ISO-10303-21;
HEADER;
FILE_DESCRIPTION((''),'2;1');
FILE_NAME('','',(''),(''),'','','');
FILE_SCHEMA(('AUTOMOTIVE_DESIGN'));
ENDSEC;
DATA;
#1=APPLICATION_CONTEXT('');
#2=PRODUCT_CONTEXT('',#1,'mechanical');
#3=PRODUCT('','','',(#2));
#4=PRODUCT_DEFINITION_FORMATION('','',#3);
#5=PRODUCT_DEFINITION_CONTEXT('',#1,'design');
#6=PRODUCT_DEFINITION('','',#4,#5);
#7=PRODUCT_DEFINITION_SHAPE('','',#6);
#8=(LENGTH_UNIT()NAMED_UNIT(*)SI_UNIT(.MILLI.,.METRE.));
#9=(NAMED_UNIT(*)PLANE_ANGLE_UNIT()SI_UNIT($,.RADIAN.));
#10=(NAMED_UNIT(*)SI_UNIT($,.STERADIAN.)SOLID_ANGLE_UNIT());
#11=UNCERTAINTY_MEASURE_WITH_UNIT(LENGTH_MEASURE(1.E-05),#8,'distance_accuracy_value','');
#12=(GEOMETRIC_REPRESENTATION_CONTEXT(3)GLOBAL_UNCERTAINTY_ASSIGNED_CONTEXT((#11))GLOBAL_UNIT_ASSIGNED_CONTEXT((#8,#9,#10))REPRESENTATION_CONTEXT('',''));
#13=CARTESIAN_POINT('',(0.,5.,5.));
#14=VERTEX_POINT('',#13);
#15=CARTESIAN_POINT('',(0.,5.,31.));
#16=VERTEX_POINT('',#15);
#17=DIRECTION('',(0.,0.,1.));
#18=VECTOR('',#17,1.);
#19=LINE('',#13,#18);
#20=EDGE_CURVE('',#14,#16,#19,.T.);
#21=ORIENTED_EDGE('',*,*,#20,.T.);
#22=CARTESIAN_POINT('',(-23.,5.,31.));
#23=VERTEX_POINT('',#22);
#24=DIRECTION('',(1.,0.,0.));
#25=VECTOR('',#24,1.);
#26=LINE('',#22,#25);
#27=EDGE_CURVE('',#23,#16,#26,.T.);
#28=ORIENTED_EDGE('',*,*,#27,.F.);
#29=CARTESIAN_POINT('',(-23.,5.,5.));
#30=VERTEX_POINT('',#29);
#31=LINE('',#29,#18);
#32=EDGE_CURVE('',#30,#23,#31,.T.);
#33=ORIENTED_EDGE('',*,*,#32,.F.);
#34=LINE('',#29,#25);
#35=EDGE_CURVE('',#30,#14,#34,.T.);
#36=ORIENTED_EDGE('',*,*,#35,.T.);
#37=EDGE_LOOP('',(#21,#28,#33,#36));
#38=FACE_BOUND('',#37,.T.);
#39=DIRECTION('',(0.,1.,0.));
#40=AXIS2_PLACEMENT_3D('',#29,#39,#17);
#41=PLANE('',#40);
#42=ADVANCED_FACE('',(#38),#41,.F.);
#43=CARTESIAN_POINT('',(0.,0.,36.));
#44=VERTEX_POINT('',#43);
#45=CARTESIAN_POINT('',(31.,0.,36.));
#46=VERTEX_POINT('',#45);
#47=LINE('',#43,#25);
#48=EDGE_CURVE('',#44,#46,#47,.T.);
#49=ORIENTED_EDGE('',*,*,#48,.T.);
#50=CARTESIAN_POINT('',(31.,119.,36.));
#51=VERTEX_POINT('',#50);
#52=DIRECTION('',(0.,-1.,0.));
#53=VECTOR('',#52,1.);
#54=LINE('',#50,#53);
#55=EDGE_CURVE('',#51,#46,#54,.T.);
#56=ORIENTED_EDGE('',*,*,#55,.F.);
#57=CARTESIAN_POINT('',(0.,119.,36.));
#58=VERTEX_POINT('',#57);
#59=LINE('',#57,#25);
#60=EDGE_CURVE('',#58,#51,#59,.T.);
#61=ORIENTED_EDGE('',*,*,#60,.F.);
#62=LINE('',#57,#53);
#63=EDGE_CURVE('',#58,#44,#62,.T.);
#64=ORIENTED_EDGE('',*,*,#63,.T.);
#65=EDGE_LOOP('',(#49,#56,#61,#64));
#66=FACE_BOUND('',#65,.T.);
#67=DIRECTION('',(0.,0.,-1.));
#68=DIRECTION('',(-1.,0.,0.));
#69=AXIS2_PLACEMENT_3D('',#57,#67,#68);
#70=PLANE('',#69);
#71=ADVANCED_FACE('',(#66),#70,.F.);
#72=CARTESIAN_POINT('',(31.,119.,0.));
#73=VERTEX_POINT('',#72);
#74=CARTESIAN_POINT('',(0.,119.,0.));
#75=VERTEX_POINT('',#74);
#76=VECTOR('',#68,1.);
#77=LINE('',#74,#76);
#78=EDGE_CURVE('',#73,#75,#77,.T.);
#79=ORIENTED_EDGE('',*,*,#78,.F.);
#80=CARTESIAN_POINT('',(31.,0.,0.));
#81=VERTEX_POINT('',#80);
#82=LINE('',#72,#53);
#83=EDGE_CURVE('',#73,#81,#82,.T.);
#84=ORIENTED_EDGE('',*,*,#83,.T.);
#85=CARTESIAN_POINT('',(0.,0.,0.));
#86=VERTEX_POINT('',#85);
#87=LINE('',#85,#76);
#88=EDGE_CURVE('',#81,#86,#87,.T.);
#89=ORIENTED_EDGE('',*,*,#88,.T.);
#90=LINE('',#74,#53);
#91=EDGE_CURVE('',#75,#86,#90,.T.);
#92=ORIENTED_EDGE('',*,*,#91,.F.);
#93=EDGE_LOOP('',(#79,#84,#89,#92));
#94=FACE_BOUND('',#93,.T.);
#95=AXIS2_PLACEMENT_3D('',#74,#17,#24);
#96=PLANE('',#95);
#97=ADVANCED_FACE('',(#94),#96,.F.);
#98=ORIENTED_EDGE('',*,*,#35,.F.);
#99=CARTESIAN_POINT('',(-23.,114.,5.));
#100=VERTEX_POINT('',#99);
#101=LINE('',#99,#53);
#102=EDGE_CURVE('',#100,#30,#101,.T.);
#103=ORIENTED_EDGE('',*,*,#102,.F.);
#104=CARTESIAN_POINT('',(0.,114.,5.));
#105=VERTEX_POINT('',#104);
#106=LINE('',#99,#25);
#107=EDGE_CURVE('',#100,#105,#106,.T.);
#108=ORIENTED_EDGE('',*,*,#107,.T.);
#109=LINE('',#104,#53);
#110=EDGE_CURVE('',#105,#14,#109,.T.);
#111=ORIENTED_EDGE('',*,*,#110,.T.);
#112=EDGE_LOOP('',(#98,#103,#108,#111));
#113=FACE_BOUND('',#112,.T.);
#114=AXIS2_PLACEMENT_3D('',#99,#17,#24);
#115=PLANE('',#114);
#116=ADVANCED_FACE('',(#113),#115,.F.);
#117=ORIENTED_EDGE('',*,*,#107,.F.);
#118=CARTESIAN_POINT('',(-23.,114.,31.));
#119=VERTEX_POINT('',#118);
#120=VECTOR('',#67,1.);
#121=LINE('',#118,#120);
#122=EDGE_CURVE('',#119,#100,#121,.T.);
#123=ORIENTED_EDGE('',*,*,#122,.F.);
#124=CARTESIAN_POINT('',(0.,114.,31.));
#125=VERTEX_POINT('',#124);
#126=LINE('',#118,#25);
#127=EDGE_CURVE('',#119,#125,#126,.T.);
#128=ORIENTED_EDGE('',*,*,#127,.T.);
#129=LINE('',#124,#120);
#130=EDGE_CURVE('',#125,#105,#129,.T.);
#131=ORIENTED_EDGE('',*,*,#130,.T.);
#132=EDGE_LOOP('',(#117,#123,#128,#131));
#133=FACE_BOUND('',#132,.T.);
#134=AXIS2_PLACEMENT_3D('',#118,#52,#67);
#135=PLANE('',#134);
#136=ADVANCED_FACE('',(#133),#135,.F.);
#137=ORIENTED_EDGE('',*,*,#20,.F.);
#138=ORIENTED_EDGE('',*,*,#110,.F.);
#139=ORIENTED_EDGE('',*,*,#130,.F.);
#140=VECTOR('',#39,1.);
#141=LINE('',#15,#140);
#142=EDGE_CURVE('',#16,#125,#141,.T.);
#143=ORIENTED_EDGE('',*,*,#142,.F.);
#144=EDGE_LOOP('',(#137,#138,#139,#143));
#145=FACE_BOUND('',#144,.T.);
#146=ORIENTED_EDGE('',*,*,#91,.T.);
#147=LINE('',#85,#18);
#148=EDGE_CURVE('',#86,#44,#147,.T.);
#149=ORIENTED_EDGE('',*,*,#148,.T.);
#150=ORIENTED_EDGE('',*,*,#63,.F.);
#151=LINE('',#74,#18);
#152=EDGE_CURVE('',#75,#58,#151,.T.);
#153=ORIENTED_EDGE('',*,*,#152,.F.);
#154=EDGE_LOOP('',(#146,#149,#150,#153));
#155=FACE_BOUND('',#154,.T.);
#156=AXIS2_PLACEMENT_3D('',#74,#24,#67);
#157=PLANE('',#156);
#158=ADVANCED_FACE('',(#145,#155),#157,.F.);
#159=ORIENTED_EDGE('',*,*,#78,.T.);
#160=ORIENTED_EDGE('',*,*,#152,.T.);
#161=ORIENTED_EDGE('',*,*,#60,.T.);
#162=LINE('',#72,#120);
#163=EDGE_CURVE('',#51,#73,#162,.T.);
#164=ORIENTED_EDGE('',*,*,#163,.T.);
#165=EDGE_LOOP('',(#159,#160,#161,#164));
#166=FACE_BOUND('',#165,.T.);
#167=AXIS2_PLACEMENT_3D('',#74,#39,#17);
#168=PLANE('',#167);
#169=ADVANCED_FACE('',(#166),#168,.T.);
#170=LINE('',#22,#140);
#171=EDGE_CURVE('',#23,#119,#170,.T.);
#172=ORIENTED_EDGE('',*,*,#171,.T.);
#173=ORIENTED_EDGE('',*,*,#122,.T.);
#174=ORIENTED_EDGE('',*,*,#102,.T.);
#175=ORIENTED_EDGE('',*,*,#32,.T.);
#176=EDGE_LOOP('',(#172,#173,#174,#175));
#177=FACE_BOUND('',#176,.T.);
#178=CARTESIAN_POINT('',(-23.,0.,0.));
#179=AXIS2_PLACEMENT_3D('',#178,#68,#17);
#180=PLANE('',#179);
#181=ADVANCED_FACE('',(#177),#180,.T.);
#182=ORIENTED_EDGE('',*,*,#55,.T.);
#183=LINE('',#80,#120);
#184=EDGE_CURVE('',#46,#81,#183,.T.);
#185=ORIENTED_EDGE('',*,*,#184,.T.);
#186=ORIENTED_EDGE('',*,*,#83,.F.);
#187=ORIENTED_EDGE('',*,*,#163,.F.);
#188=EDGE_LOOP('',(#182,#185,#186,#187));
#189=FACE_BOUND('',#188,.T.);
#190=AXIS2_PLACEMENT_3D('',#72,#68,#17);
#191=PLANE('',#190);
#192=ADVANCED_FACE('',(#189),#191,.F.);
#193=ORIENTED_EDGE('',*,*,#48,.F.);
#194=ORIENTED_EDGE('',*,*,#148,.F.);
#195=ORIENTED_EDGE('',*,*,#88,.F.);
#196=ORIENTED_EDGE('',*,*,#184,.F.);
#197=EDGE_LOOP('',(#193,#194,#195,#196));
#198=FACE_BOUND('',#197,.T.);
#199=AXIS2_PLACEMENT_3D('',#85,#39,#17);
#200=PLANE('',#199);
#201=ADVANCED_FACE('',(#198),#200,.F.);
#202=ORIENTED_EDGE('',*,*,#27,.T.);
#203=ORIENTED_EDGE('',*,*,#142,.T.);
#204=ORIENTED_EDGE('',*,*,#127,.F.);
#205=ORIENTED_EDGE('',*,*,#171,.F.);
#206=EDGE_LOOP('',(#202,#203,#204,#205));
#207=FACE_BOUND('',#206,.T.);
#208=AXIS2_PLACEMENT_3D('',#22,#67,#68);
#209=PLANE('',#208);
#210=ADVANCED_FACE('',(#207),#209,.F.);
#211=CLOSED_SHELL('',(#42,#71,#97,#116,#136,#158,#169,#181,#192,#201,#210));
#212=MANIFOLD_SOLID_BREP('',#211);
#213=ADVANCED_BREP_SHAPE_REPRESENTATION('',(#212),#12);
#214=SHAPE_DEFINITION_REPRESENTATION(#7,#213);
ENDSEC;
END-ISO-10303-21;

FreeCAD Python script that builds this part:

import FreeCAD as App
import Part
import Sketcher


def add_polygon(sketch, points):
    """Adds a closed chain of lines whose ends are joined by coincident constraints."""
    first, n = sketch.GeometryCount, len(points)
    for a, b in zip(points, points[1:] + points[:1]):
        sketch.addGeometry(Part.LineSegment(App.Vector(*a, 0), App.Vector(*b, 0)), False)
    for i in range(n):
        sketch.addConstraint(Sketcher.Constraint("Coincident", first + i, 2, first + (i + 1) % n, 1))

doc = App.newDocument("Part")
body = doc.addObject("PartDesign::Body", "Body")

# Sketch on XZ plane
sketch1 = body.newObject("Sketcher::SketchObject", "Sketch")
sketch1.AttachmentSupport = (doc.getObject("XZ_Plane"), [""])
sketch1.MapMode = "FlatFace"
add_polygon(sketch1, [(0, 0), (0, 36), (31, 36), (31, 0)])  # lines 0-3
sketch1.addConstraint([
    Sketcher.Constraint("Vertical", 0),
    Sketcher.Constraint("Horizontal", 1),
    Sketcher.Constraint("Vertical", 2),
    Sketcher.Constraint("Horizontal", 3),
    Sketcher.Constraint("Coincident", 3, 2, -1, 1),
    Sketcher.Constraint("DistanceX", 1, 1, 1, 2, 31.0),
    Sketcher.Constraint("DistanceY", 0, 1, 0, 2, 36.0),
])
pad1 = body.newObject("PartDesign::Pad", "Pad")
pad1.Profile = sketch1
pad1.Length = 119
pad1.Reversed = True

# Sketch on YZ plane
sketch2 = body.newObject("Sketcher::SketchObject", "Sketch001")
sketch2.AttachmentSupport = (doc.getObject("YZ_Plane"), [""])
sketch2.MapMode = "FlatFace"
add_polygon(sketch2, [(114, 5), (5, 5), (5, 31), (114, 31)])  # lines 0-3
sketch2.addConstraint([
    Sketcher.Constraint("Horizontal", 0),
    Sketcher.Constraint("Vertical", 1),
    Sketcher.Constraint("Horizontal", 2),
    Sketcher.Constraint("Vertical", 3),
    Sketcher.Constraint("DistanceX", 0, 2, 0, 1, 109.0),
    Sketcher.Constraint("DistanceY", 1, 1, 1, 2, 26.0),
    Sketcher.Constraint("DistanceX", -1, 1, 0, 2, 5.0),
    Sketcher.Constraint("DistanceY", -1, 1, 0, 2, 5.0),
])
pad2 = body.newObject("PartDesign::Pad", "Pad001")
pad2.Profile = sketch2
pad2.Length = 23
pad2.Reversed = True

doc.recompute()
